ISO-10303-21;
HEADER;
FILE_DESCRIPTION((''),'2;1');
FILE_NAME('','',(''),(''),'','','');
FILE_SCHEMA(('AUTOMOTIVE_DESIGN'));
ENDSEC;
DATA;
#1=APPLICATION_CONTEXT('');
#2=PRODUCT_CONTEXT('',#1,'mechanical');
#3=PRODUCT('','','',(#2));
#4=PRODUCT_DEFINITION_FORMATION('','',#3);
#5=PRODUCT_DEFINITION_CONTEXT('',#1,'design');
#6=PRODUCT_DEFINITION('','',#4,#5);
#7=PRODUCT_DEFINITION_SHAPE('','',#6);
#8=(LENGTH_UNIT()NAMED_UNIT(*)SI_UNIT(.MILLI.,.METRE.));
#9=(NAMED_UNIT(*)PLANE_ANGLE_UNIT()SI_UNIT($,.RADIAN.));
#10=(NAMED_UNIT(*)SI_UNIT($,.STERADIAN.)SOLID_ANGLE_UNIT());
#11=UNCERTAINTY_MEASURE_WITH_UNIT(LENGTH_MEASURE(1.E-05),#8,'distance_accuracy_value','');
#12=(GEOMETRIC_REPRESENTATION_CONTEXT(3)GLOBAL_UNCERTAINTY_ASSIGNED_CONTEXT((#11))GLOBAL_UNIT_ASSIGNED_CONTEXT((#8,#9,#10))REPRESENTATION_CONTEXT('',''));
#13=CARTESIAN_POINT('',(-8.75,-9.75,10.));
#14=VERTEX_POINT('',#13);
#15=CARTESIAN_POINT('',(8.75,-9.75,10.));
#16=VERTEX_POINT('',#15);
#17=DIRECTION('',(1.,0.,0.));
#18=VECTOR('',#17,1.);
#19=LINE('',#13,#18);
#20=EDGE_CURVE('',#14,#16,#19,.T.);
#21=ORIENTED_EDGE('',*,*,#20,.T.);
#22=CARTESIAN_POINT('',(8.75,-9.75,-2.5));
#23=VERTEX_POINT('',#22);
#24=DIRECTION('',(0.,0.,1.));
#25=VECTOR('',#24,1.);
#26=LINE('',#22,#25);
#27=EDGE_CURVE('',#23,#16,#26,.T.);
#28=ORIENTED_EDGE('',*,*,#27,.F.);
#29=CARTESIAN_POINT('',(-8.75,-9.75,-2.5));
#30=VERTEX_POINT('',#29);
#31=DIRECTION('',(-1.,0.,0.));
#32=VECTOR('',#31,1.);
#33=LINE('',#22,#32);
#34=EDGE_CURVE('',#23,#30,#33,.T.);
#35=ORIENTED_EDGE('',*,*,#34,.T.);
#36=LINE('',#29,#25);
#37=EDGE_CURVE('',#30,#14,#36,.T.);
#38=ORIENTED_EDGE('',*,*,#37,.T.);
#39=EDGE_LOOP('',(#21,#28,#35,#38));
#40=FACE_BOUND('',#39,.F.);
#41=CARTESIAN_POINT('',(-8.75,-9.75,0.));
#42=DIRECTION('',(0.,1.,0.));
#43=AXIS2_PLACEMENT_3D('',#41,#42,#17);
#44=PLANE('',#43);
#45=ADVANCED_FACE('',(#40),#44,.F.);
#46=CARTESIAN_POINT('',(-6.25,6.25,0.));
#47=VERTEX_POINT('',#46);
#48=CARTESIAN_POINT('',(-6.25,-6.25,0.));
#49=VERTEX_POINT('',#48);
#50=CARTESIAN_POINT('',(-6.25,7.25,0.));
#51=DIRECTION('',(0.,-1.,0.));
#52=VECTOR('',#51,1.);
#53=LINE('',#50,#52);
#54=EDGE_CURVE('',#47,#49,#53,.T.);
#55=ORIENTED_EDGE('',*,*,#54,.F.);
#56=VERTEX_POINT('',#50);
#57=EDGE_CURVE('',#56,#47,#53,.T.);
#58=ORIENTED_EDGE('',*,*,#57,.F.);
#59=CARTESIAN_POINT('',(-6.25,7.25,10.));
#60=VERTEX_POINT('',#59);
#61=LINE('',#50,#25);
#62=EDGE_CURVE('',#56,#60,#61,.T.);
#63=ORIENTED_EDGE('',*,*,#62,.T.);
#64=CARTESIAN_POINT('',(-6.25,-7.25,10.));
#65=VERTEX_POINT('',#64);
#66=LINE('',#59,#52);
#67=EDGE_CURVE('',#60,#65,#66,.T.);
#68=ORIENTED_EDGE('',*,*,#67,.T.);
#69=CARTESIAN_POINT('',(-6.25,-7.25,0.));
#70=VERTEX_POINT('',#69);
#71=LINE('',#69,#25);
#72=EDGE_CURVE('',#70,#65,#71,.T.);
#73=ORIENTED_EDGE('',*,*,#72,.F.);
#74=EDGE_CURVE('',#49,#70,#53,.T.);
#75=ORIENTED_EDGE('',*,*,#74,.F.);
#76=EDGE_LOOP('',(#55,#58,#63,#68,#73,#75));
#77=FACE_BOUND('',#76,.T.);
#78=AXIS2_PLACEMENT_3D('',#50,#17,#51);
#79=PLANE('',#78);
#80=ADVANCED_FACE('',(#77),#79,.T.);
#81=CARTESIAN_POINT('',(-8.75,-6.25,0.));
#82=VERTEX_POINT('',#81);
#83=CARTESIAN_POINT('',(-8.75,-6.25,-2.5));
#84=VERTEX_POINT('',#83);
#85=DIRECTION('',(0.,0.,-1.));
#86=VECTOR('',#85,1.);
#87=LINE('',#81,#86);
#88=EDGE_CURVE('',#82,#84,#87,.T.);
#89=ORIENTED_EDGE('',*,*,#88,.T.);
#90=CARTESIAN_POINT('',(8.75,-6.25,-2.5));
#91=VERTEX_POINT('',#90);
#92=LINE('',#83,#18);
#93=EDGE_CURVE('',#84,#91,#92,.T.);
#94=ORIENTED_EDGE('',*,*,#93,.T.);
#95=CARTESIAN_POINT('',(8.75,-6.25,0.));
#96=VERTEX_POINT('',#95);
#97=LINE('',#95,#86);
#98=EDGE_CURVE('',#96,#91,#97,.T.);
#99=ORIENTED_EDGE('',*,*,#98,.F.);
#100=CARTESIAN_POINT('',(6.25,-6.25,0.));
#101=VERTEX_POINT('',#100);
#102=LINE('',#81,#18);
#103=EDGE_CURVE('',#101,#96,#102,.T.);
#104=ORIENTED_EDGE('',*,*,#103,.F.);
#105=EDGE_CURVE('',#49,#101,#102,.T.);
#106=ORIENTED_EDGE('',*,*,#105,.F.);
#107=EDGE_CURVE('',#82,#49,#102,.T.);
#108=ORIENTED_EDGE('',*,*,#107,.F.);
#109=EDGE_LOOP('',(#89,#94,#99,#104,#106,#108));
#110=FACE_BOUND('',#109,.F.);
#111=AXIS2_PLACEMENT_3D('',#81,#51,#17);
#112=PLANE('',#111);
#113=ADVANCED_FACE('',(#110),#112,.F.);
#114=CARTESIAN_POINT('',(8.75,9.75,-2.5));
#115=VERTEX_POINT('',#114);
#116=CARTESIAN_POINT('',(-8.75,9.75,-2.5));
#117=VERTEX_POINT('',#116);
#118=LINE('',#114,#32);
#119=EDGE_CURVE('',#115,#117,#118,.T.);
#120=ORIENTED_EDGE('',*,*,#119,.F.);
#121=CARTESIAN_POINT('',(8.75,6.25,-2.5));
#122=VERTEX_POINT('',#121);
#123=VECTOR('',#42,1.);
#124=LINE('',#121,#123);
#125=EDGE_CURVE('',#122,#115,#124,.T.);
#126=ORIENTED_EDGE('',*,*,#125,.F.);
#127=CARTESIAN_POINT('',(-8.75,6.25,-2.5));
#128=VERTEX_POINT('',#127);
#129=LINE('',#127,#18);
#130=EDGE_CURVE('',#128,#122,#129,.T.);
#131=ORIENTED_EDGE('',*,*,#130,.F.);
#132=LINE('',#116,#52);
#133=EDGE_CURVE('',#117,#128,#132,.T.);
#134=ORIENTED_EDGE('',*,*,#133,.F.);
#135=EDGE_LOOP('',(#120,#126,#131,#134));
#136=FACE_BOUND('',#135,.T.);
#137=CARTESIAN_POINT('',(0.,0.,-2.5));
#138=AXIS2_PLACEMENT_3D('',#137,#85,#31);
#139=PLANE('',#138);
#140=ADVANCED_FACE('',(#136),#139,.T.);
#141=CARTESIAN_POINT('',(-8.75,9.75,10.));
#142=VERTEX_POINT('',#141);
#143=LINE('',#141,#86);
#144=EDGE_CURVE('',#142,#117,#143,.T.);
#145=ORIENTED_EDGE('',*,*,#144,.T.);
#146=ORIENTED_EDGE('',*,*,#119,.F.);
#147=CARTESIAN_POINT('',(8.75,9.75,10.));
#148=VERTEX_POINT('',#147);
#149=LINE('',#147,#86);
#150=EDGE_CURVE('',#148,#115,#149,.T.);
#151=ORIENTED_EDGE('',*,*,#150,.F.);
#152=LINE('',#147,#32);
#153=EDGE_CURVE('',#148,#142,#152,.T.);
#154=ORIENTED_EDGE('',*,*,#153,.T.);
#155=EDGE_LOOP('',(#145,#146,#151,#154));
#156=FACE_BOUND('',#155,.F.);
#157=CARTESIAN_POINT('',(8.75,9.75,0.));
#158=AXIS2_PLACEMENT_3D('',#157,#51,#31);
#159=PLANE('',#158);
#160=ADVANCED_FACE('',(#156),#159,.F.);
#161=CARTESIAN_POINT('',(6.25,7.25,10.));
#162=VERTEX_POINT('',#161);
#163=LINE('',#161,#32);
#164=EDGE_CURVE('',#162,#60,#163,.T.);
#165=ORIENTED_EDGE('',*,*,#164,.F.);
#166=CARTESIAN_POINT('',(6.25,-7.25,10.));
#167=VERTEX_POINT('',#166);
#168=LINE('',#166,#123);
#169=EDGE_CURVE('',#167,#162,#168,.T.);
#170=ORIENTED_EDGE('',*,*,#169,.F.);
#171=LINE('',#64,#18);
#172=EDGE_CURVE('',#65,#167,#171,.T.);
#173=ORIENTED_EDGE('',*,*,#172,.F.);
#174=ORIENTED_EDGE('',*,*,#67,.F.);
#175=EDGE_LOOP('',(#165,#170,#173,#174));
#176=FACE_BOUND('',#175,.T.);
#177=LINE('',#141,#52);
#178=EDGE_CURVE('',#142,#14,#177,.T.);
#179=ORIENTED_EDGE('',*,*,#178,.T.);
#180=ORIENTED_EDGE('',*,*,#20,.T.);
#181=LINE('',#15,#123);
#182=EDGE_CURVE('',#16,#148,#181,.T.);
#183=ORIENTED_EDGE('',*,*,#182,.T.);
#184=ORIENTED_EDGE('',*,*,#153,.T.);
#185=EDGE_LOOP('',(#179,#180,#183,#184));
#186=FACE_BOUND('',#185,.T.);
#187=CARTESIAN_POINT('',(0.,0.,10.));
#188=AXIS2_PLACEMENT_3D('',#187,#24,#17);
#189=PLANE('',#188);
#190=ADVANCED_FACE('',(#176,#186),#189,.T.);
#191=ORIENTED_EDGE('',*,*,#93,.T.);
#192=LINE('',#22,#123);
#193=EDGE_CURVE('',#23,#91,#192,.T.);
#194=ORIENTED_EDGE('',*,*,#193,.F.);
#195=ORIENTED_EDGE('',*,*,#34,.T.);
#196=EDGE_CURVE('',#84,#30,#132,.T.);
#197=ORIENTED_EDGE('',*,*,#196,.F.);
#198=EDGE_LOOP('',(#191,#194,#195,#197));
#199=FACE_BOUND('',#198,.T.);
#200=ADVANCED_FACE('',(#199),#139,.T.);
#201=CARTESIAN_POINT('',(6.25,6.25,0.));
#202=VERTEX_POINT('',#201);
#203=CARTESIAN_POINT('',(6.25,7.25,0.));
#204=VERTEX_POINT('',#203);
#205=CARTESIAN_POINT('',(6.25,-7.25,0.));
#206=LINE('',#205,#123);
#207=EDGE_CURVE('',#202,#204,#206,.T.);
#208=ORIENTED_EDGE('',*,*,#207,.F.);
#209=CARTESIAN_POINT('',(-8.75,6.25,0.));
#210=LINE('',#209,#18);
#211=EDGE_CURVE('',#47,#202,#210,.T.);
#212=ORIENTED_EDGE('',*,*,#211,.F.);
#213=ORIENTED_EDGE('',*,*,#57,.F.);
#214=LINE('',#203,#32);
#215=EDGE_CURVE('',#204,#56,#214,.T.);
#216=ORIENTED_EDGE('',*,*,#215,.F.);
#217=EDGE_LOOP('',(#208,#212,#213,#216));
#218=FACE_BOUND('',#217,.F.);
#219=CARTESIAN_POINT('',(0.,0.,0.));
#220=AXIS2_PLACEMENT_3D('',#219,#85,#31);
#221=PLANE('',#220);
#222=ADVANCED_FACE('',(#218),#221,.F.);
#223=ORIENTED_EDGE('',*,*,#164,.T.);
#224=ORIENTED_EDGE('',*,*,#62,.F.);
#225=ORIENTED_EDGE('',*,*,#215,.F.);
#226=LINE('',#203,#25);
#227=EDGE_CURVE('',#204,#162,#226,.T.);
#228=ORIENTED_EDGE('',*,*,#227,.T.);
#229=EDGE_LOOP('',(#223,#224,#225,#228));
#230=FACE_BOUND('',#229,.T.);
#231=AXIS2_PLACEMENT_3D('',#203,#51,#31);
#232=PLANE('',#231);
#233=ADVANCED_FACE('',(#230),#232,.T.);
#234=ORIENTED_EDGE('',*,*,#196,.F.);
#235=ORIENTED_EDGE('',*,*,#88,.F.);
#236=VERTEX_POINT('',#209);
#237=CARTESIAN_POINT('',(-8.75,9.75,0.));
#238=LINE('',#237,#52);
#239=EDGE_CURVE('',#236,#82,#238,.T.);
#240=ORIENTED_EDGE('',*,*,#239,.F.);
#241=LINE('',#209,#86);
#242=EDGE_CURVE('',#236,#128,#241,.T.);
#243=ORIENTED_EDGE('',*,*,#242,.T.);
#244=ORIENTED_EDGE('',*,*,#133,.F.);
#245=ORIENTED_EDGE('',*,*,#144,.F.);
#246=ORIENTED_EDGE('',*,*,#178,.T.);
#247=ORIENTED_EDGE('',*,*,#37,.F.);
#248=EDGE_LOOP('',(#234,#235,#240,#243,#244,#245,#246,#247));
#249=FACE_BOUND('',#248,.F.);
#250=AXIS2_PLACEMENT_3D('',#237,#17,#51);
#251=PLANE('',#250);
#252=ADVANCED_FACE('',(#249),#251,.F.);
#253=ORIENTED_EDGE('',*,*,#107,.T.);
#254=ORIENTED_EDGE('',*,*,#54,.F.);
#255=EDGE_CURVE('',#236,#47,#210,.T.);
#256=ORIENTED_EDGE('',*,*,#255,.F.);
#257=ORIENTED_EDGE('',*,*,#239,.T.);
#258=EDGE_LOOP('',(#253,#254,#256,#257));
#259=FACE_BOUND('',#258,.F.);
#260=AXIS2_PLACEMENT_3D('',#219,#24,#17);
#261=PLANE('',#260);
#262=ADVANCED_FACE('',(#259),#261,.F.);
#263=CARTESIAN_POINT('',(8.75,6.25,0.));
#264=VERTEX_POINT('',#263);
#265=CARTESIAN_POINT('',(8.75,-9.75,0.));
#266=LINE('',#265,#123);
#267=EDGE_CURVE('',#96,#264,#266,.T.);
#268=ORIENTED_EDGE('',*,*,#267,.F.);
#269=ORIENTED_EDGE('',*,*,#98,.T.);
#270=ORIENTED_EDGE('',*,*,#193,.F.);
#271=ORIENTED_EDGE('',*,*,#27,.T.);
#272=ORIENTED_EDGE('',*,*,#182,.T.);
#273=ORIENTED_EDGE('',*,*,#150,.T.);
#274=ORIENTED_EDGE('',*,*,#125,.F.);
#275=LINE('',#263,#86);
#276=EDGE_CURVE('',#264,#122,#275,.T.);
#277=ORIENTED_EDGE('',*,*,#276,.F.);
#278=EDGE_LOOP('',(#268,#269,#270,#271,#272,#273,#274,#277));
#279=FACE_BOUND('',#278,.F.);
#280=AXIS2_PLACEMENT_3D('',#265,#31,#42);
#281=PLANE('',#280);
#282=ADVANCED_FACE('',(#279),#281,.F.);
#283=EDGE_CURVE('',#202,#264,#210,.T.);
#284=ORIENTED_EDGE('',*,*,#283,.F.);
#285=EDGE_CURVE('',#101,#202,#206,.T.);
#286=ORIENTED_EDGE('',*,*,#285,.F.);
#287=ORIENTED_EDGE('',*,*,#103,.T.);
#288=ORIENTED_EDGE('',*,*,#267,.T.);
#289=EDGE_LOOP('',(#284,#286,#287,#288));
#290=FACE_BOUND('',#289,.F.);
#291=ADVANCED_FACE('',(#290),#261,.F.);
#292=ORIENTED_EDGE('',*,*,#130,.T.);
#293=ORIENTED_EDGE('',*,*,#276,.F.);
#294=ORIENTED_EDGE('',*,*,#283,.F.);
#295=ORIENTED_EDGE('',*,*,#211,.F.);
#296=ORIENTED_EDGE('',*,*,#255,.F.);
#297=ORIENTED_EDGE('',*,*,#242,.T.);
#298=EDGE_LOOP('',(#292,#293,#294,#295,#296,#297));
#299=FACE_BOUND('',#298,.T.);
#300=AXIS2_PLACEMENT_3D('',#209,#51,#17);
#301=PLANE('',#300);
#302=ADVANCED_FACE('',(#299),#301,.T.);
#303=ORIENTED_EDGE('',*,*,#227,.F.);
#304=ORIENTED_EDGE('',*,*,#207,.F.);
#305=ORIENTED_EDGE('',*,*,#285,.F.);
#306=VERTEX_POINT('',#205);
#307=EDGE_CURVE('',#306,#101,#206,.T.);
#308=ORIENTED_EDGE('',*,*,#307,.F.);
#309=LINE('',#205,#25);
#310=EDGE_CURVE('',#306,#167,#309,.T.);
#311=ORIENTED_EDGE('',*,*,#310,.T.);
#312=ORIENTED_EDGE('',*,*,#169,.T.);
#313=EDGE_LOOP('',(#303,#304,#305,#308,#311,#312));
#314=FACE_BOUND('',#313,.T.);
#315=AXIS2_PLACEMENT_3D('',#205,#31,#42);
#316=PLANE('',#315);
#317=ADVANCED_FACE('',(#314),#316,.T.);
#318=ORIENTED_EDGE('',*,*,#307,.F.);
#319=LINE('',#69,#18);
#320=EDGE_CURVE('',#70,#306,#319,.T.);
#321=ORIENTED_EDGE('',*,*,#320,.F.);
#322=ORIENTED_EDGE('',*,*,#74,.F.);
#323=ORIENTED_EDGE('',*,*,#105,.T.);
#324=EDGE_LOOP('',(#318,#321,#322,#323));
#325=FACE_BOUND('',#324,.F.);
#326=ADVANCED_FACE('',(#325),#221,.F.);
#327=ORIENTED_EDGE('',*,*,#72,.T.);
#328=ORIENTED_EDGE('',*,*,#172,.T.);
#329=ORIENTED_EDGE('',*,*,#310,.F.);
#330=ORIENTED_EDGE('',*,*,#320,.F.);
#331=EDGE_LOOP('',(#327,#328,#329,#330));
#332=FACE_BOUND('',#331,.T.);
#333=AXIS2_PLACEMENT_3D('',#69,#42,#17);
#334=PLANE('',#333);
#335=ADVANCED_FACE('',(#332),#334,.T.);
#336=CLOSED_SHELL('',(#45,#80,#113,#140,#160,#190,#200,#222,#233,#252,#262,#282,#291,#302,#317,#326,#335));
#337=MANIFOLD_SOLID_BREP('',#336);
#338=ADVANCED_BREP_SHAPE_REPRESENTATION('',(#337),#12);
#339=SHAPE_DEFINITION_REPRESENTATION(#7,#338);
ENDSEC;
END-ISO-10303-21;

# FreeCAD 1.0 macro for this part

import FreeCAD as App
import Part
import Sketcher

V = App.Vector

doc = App.newDocument("Part")
body = doc.addObject("PartDesign::Body", "Body")

# Sketch on XY plane
sketch1 = body.newObject("Sketcher::SketchObject", "Sketch")
sketch1.AttachmentSupport = (doc.getObject("XY_Plane"), [""])
sketch1.MapMode = "FlatFace"
sketch1.addGeometry(Part.LineSegment(V(-9, 10, 0), V(-9, -10, 0)), False)
sketch1.addGeometry(Part.LineSegment(V(-9, -10, 0), V(9, -10, 0)), False)
sketch1.addGeometry(Part.LineSegment(V(9, -10, 0), V(9, 10, 0)), False)
sketch1.addGeometry(Part.LineSegment(V(9, 10, 0), V(-9, 10, 0)), False)
sketch1.addGeometry(Part.LineSegment(V(6, -7, 0), V(-6, -7, 0)), False)
sketch1.addGeometry(Part.LineSegment(V(-6, -7, 0), V(-6, 7, 0)), False)
sketch1.addGeometry(Part.LineSegment(V(-6, 7, 0), V(6, 7, 0)), False)
sketch1.addGeometry(Part.LineSegment(V(6, 7, 0), V(6, -7, 0)), False)
sketch1.addConstraint(Sketcher.Constraint("Coincident", 0, 2, 1, 1))
sketch1.addConstraint(Sketcher.Constraint("Coincident", 1, 2, 2, 1))
sketch1.addConstraint(Sketcher.Constraint("Coincident", 2, 2, 3, 1))
sketch1.addConstraint(Sketcher.Constraint("Coincident", 3, 2, 0, 1))
sketch1.addConstraint(Sketcher.Constraint("Coincident", 4, 2, 5, 1))
sketch1.addConstraint(Sketcher.Constraint("Coincident", 5, 2, 6, 1))
sketch1.addConstraint(Sketcher.Constraint("Coincident", 6, 2, 7, 1))
sketch1.addConstraint(Sketcher.Constraint("Coincident", 7, 2, 4, 1))
sketch1.addConstraint(Sketcher.Constraint("Vertical", 0))
sketch1.addConstraint(Sketcher.Constraint("Horizontal", 1))
sketch1.addConstraint(Sketcher.Constraint("Vertical", 2))
sketch1.addConstraint(Sketcher.Constraint("Horizontal", 3))
sketch1.addConstraint(Sketcher.Constraint("Horizontal", 4))
sketch1.addConstraint(Sketcher.Constraint("Vertical", 5))
sketch1.addConstraint(Sketcher.Constraint("Horizontal", 6))
sketch1.addConstraint(Sketcher.Constraint("Vertical", 7))
sketch1.addConstraint(Sketcher.Constraint("Symmetric", 0, 2, 2, 2, -1, 1))
sketch1.addConstraint(Sketcher.Constraint("Symmetric", 4, 2, 6, 2, -1, 1))
sketch1.addConstraint(Sketcher.Constraint("DistanceX", 1, 1, 1, 2, 17.5))
sketch1.addConstraint(Sketcher.Constraint("DistanceX", 4, 2, 4, 1, 12.5))
sketch1.addConstraint(Sketcher.Constraint("DistanceY", 0, 2, 0, 1, 19.5))
sketch1.addConstraint(Sketcher.Constraint("DistanceY", 5, 1, 5, 2, 14.5))
pad1 = body.newObject("PartDesign::Pad", "Pad")
pad1.Profile = sketch1
pad1.Length = 10

# Sketch on XY plane
sketch2 = body.newObject("Sketcher::SketchObject", "Sketch001")
sketch2.AttachmentSupport = (doc.getObject("XY_Plane"), [""])
sketch2.MapMode = "FlatFace"
sketch2.addGeometry(Part.LineSegment(V(-8.8, 6.2, 0), V(-8.8, 9.8, 0)), False)
sketch2.addGeometry(Part.LineSegment(V(-8.8, 9.8, 0), V(8.8, 9.8, 0)), False)
sketch2.addGeometry(Part.LineSegment(V(8.8, 9.8, 0), V(8.8, 6.2, 0)), False)
sketch2.addGeometry(Part.LineSegment(V(8.8, 6.2, 0), V(-8.8, 6.2, 0)), False)
sketch2.addGeometry(Part.LineSegment(V(-8.8, -9.8, 0), V(-8.8, -6.2, 0)), False)
sketch2.addGeometry(Part.LineSegment(V(-8.8, -6.2, 0), V(8.8, -6.2, 0)), False)
sketch2.addGeometry(Part.LineSegment(V(8.8, -6.2, 0), V(8.8, -9.8, 0)), False)
sketch2.addGeometry(Part.LineSegment(V(8.8, -9.8, 0), V(-8.8, -9.8, 0)), False)
sketch2.addConstraint(Sketcher.Constraint("Coincident", 0, 2, 1, 1))
sketch2.addConstraint(Sketcher.Constraint("Coincident", 1, 2, 2, 1))
sketch2.addConstraint(Sketcher.Constraint("Coincident", 2, 2, 3, 1))
sketch2.addConstraint(Sketcher.Constraint("Coincident", 3, 2, 0, 1))
sketch2.addConstraint(Sketcher.Constraint("Coincident", 4, 2, 5, 1))
sketch2.addConstraint(Sketcher.Constraint("Coincident", 5, 2, 6, 1))
sketch2.addConstraint(Sketcher.Constraint("Coincident", 6, 2, 7, 1))
sketch2.addConstraint(Sketcher.Constraint("Coincident", 7, 2, 4, 1))
sketch2.addConstraint(Sketcher.Constraint("Vertical", 0))
sketch2.addConstraint(Sketcher.Constraint("Horizontal", 1))
sketch2.addConstraint(Sketcher.Constraint("Vertical", 2))
sketch2.addConstraint(Sketcher.Constraint("Horizontal", 3))
sketch2.addConstraint(Sketcher.Constraint("Vertical", 4))
sketch2.addConstraint(Sketcher.Constraint("Horizontal", 5))
sketch2.addConstraint(Sketcher.Constraint("Vertical", 6))
sketch2.addConstraint(Sketcher.Constraint("Horizontal", 7))
sketch2.addConstraint(Sketcher.Constraint("Symmetric", 2, 2, 4, 2, -1, 1))
sketch2.addConstraint(Sketcher.Constraint("Symmetric", 0, 2, 6, 2, -1, 1))
sketch2.addConstraint(Sketcher.Constraint("Vertical", 3, 2, 4, 2))
sketch2.addConstraint(Sketcher.Constraint("DistanceX", 1, 1, 1, 2, 17.5))
sketch2.addConstraint(Sketcher.Constraint("DistanceY", 0, 1, 0, 2, 3.5))
sketch2.addConstraint(Sketcher.Constraint("DistanceY", 4, 2, 0, 2, 16.0))
pad2 = body.newObject("PartDesign::Pad", "Pad001")
pad2.Profile = sketch2
pad2.Length = 2.5
pad2.Reversed = True

doc.recompute()
